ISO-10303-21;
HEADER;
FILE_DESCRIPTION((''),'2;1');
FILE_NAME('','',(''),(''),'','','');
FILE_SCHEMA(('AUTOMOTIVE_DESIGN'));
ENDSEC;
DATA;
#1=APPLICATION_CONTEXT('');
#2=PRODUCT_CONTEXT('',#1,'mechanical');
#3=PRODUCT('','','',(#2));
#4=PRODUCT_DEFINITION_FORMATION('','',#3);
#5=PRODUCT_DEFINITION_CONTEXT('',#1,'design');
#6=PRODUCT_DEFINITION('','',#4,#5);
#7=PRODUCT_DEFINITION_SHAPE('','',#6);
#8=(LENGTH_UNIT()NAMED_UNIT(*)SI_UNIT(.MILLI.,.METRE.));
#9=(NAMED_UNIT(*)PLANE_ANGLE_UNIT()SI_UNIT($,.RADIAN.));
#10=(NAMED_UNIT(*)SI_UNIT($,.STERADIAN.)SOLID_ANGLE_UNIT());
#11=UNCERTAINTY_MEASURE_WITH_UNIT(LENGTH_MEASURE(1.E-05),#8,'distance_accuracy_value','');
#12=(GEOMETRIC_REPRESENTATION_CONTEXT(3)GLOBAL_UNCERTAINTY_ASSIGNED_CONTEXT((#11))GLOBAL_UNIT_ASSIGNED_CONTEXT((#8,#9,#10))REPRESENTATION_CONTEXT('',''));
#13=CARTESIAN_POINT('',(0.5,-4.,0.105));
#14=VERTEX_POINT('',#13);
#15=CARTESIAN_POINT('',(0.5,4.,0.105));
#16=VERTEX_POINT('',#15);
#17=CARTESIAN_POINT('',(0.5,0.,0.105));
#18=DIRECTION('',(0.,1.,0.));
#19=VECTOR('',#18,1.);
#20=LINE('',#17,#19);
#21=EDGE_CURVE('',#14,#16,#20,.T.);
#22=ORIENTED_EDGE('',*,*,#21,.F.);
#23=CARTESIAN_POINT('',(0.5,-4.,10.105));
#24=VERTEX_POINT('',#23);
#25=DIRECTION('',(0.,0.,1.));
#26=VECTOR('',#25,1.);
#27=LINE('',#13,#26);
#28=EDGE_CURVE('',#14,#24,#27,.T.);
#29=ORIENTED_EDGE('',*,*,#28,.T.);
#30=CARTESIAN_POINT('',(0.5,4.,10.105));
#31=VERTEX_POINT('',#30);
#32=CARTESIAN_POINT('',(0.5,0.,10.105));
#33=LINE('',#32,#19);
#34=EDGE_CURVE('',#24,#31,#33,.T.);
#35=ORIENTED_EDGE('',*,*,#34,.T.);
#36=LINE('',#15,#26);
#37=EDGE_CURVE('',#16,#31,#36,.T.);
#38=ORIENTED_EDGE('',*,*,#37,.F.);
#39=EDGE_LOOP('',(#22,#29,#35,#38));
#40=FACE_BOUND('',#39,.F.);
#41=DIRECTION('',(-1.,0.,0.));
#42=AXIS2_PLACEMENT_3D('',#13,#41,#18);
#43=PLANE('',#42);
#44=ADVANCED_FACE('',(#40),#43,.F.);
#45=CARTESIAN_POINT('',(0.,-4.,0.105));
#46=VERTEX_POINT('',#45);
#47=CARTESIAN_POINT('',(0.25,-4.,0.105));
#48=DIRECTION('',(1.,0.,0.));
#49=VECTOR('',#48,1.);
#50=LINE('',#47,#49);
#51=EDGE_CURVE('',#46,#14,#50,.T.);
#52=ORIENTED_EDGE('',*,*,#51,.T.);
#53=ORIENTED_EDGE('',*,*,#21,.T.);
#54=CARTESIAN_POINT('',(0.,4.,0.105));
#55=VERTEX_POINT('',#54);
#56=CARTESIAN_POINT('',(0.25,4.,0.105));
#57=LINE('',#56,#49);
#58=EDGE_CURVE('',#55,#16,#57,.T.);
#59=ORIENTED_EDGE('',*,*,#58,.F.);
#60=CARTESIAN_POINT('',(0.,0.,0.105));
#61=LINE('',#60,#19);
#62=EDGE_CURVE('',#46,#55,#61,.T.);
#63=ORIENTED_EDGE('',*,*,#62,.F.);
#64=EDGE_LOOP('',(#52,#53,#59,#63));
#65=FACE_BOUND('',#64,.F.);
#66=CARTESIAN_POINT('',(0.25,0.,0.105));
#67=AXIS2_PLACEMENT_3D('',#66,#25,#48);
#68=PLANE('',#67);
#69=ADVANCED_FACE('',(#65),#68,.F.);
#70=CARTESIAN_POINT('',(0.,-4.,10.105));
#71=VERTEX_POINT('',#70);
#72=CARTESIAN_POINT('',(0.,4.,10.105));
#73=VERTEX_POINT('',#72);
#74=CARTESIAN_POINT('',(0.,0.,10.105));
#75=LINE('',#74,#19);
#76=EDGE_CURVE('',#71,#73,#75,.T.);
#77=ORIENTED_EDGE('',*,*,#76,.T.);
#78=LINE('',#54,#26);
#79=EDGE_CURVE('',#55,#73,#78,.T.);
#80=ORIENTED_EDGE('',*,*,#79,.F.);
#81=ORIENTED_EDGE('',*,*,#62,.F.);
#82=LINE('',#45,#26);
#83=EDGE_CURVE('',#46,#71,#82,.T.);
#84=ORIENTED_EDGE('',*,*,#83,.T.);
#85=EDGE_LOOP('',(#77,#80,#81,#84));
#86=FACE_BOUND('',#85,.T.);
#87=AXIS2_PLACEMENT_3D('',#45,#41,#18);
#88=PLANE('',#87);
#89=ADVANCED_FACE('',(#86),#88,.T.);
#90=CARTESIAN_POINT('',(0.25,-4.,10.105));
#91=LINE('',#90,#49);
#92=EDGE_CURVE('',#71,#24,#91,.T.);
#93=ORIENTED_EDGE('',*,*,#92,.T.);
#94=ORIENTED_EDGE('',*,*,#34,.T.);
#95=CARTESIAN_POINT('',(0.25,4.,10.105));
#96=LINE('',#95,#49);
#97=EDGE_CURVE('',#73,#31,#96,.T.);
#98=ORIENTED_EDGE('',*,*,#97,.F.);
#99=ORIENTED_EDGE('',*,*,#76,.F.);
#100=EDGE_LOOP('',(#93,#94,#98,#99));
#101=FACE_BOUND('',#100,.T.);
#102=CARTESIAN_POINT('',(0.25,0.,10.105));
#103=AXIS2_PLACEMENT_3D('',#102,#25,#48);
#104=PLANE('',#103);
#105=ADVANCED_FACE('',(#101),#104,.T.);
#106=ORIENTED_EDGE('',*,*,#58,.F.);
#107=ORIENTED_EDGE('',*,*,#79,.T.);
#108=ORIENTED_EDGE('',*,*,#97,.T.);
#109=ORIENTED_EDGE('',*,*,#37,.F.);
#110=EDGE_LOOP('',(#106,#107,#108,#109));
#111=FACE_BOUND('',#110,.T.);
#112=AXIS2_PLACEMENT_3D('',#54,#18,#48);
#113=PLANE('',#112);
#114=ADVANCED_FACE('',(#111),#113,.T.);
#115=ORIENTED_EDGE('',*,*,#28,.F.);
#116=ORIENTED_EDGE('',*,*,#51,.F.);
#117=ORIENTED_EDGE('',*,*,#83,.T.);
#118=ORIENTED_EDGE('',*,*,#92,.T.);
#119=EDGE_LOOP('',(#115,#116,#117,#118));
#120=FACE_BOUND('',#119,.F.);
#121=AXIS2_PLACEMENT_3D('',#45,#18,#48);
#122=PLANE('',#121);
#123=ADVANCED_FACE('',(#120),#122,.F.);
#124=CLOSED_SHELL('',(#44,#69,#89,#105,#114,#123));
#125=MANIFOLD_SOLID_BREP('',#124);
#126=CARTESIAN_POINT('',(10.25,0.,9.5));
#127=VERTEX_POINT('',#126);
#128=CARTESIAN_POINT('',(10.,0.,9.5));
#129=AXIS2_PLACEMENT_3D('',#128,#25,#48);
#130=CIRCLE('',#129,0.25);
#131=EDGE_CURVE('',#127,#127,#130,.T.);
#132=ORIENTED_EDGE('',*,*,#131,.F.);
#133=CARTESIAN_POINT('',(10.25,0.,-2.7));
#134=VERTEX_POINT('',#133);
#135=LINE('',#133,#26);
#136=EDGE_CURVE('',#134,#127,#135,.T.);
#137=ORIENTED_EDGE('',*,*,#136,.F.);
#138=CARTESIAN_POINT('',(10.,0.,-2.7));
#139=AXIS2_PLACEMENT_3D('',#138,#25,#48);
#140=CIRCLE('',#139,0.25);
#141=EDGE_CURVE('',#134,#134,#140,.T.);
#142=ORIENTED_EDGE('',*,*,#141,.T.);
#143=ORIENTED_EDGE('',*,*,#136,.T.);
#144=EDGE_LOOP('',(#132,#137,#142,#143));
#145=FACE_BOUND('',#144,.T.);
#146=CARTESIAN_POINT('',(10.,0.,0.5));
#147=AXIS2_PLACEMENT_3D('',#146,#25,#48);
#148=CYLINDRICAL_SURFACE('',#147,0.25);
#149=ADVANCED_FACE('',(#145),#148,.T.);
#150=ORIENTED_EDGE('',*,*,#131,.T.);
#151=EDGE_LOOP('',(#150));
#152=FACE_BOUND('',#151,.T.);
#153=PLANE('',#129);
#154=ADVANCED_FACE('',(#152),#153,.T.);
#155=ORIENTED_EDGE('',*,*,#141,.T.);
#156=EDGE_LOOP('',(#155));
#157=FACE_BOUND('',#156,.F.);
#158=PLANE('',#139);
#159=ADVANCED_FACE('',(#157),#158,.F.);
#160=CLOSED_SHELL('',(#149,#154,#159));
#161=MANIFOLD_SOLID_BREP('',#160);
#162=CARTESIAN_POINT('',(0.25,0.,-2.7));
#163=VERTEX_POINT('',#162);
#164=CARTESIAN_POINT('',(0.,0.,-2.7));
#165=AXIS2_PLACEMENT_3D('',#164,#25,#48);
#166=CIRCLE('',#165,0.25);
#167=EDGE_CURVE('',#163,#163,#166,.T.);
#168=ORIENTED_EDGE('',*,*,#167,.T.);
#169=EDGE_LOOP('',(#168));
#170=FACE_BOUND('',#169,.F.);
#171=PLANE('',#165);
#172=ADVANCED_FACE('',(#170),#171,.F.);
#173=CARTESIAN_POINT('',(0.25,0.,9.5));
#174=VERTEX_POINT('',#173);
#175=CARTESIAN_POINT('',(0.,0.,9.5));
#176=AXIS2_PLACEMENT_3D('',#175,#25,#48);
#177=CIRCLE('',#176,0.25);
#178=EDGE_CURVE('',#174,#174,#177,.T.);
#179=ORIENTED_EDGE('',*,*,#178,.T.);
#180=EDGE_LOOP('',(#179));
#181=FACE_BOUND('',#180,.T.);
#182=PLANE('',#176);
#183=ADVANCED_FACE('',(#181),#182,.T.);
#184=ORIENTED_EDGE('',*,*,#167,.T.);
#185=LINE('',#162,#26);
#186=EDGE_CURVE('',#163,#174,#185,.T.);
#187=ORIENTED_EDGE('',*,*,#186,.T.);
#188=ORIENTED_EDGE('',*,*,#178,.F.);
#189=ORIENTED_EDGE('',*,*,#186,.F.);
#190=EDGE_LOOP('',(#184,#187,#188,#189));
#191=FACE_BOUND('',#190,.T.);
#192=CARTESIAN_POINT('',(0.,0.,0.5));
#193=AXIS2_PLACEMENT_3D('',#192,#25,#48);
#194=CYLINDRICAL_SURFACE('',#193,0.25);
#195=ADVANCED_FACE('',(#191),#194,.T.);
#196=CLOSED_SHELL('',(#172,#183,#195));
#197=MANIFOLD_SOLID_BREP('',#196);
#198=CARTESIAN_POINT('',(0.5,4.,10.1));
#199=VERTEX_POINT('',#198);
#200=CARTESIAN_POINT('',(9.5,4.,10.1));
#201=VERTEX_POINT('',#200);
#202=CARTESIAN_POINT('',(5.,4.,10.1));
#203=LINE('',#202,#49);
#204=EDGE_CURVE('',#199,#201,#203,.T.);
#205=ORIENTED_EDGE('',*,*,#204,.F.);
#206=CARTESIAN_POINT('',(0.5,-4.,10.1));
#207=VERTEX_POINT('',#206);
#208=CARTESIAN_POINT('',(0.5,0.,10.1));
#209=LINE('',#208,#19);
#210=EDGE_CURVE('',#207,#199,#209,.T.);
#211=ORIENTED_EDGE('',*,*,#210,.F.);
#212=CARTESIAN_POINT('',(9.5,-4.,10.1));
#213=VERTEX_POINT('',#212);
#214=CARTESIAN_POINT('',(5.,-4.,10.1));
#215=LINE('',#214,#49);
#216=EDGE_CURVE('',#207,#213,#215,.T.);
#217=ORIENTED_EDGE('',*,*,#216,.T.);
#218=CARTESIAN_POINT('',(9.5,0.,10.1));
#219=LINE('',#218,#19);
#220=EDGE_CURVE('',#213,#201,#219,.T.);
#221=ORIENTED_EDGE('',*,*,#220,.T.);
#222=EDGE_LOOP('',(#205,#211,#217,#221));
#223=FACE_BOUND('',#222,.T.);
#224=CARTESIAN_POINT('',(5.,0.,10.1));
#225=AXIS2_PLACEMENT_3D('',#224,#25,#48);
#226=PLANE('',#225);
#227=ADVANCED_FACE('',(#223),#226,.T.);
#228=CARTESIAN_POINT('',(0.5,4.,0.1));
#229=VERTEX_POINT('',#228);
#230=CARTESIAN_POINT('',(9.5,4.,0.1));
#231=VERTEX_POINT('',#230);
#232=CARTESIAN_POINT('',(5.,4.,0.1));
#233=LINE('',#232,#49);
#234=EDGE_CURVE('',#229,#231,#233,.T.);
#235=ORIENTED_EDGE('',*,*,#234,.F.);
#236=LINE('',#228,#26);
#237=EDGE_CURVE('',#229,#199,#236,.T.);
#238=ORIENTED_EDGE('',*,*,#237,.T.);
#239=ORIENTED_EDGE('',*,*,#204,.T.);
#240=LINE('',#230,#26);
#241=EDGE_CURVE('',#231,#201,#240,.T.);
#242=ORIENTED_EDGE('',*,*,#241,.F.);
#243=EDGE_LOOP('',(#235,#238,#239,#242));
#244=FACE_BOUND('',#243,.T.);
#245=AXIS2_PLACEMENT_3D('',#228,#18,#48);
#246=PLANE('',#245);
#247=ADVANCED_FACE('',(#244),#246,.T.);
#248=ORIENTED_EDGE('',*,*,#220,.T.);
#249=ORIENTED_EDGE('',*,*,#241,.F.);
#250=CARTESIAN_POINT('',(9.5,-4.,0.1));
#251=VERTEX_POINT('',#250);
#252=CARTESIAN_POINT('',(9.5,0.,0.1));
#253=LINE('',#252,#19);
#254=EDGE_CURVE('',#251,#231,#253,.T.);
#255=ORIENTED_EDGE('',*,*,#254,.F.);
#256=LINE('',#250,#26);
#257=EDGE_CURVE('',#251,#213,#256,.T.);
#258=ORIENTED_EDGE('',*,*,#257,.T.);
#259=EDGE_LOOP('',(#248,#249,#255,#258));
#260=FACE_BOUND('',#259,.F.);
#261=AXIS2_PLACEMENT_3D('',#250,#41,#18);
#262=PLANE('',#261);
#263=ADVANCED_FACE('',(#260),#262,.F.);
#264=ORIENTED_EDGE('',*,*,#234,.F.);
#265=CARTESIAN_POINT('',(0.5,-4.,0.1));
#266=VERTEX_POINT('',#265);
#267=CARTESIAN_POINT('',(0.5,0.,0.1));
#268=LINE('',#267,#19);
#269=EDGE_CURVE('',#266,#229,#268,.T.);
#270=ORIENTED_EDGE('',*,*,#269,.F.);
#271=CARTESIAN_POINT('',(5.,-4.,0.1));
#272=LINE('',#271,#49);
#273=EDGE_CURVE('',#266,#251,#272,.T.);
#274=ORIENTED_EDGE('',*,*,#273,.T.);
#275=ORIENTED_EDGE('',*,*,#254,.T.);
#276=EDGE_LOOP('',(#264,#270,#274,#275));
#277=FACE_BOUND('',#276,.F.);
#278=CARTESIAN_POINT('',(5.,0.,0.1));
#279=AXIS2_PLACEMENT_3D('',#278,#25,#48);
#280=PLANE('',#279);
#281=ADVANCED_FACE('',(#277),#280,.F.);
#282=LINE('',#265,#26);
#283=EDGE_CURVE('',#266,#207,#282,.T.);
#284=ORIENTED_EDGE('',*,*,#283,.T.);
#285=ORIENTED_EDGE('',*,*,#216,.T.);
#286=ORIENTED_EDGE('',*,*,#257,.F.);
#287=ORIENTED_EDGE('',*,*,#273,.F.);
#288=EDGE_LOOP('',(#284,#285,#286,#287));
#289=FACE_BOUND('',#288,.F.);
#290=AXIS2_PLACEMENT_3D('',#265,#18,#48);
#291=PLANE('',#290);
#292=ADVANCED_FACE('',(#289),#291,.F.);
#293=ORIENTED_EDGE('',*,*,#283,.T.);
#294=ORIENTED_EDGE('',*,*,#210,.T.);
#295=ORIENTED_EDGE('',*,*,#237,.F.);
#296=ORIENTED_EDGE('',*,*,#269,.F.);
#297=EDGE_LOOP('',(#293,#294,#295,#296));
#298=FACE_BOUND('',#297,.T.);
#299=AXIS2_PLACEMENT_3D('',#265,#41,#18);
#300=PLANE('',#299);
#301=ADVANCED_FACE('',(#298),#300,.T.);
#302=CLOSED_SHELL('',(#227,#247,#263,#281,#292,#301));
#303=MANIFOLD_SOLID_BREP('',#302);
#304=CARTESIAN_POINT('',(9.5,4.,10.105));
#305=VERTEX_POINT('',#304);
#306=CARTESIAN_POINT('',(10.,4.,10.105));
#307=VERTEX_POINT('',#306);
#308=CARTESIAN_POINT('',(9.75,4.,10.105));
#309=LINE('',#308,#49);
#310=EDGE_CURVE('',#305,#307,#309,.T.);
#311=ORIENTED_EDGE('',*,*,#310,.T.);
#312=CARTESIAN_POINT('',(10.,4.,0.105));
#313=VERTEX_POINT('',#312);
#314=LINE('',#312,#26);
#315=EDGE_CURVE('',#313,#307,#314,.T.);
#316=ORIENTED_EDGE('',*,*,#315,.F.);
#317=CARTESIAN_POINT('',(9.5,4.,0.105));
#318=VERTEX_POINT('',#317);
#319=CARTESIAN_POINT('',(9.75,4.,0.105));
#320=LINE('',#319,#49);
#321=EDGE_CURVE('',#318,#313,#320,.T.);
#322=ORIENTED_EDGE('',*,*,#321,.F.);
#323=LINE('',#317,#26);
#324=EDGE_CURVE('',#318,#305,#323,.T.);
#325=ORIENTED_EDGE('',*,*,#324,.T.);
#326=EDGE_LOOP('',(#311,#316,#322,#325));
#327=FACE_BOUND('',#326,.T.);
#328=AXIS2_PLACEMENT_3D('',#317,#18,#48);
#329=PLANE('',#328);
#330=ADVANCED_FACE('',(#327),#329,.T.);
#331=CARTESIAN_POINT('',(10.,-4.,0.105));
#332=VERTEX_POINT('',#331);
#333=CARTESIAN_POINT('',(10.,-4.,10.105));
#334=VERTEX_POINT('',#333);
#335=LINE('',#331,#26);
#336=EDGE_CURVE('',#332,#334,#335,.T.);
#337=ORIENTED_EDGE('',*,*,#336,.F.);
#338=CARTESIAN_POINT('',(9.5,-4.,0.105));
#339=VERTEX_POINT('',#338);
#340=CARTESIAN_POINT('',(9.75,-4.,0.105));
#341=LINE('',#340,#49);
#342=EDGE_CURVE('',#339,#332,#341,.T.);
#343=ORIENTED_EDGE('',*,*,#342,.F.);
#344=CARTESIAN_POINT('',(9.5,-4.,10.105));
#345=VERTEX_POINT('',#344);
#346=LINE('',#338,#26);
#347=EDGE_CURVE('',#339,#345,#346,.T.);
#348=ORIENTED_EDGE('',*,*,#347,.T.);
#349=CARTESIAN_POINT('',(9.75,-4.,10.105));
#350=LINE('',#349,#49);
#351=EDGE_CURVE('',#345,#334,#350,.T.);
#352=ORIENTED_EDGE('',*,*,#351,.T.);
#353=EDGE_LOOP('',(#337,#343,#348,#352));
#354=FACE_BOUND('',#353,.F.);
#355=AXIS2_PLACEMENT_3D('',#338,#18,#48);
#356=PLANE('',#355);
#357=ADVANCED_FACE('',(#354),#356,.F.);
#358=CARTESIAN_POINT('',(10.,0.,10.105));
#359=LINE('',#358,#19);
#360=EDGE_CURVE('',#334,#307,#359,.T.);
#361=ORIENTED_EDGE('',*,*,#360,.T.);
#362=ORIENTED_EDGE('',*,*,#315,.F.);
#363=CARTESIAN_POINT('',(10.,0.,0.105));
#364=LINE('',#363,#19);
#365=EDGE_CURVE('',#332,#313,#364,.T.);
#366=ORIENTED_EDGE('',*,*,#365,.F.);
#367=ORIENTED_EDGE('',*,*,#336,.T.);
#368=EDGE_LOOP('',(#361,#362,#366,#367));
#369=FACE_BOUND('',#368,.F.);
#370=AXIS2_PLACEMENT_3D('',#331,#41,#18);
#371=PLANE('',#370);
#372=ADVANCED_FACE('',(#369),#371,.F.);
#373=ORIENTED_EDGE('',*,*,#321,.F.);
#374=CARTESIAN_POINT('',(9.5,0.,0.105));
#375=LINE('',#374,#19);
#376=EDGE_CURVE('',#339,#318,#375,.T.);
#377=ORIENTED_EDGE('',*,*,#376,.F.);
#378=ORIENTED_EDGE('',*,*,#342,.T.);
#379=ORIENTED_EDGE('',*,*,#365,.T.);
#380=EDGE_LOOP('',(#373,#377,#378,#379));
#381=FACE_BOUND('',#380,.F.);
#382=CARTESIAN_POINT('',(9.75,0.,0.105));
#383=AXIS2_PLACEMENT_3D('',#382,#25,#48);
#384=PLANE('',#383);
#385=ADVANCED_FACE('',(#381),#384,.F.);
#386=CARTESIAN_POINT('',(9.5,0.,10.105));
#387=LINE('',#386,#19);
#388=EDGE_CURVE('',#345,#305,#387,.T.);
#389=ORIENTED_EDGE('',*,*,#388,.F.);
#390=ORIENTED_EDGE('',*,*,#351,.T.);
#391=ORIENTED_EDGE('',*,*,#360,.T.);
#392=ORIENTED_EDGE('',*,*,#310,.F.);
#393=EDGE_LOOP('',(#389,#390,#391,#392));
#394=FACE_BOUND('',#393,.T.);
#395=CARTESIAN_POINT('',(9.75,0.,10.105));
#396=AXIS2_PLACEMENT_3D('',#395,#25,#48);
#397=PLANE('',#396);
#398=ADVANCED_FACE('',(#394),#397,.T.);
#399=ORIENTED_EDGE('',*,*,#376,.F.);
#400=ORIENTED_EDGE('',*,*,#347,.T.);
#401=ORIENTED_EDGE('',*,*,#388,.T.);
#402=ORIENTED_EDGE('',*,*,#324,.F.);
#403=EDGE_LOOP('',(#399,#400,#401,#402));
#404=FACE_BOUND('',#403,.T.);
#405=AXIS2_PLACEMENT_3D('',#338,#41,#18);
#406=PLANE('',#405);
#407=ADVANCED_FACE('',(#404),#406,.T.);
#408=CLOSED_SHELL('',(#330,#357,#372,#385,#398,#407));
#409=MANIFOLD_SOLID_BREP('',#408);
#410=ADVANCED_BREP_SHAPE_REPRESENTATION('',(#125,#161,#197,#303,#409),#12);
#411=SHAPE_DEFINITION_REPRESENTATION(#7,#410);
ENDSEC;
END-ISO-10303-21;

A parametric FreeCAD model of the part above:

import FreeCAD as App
import Part
import Sketcher

V = App.Vector
Q = App.Units.Quantity

doc = App.newDocument("Part")
params = doc.addObject("Spreadsheet::Sheet", "Params")
for row, (alias, value) in enumerate([
    ("sketch1_width", "9 mm"),
    ("sketch1_height", "8 mm"),
    ("pad1_length", "10 mm"),
    ("sketch2_diameter", "0.5 mm"),
    ("pad2_length", "9 mm"),
    ("pad2_length2", "3.2 mm"),
    ("sketch3_height", "8 mm"),
    ("sketch3_width", "0.5 mm"),
    ("pad3_length", "10 mm"),
], start=1):
    params.set(f"A{row}", alias)
    params.set(f"B{row}", "=" + value)
    params.setAlias(f"B{row}", alias)

body = doc.addObject("PartDesign::Body", "Body")

# Sketch on XY plane
sketch1 = body.newObject("Sketcher::SketchObject", "Sketch")
sketch1.AttachmentSupport = (doc.getObject("XY_Plane"), [""])
sketch1.MapMode = "FlatFace"
sketch1.AttachmentOffset = App.Placement(V(0, 0, 0.1), App.Rotation())
sketch1.addGeometry(Part.LineSegment(V(0, 4, 0), V(0, -4, 0)), False)
sketch1.addGeometry(Part.LineSegment(V(0, -4, 0), V(10, -4, 0)), False)
sketch1.addGeometry(Part.LineSegment(V(10, -4, 0), V(10, 4, 0)), False)
sketch1.addGeometry(Part.LineSegment(V(10, 4, 0), V(0, 4, 0)), False)
sketch1.addConstraint(Sketcher.Constraint("Coincident", 0, 2, 1, 1))
sketch1.addConstraint(Sketcher.Constraint("Coincident", 1, 2, 2, 1))
sketch1.addConstraint(Sketcher.Constraint("Coincident", 2, 2, 3, 1))
sketch1.addConstraint(Sketcher.Constraint("Coincident", 3, 2, 0, 1))
sketch1.addConstraint(Sketcher.Constraint("Vertical", 0))
sketch1.addConstraint(Sketcher.Constraint("Horizontal", 1))
sketch1.addConstraint(Sketcher.Constraint("Vertical", 2))
sketch1.addConstraint(Sketcher.Constraint("Horizontal", 3))
sketch1.addConstraint(Sketcher.Constraint("DistanceX", 1, 1, 1, 2, Q("9 mm")))
sketch1.addConstraint(Sketcher.Constraint("DistanceY", 0, 2, 0, 1, Q("8 mm")))
sketch1.addConstraint(Sketcher.Constraint("DistanceY", 0, 2, -1, 1, Q("4 mm")))
sketch1.addConstraint(Sketcher.Constraint("DistanceX", -1, 1, 0, 2, Q("0.5 mm")))
sketch1.setExpression("Constraints[8]", "Params.sketch1_width")
sketch1.setExpression("Constraints[9]", "Params.sketch1_height")
pad1 = body.newObject("PartDesign::Pad", "Pad")
pad1.Profile = sketch1
pad1.setExpression("Length", "Params.pad1_length")
body2 = doc.addObject("PartDesign::Body", "Body001")
body2.AllowCompound = True

# Sketch on XY plane
sketch2 = body2.newObject("Sketcher::SketchObject", "Sketch001")
sketch2.AttachmentSupport = (doc.getObject("XY_Plane001"), [""])
sketch2.MapMode = "FlatFace"
sketch2.AttachmentOffset = App.Placement(V(0, 0, 0.5), App.Rotation())
sketch2.addGeometry(Part.Circle(V(0, 0, 0), V(0, 0, 1), 0.25), False)
sketch2.addGeometry(Part.Circle(V(10, 0, 0), V(0, 0, 1), 0.25), False)
sketch2.addConstraint(Sketcher.Constraint("Coincident", 0, 3, -1, 1))
sketch2.addConstraint(Sketcher.Constraint("Equal", 0, 1))
sketch2.addConstraint(Sketcher.Constraint("PointOnObject", 1, 3, -1))
sketch2.addConstraint(Sketcher.Constraint("Diameter", 0, Q("0.5 mm")))
sketch2.addConstraint(Sketcher.Constraint("DistanceX", -1, 1, 1, 3, Q("10 mm")))
sketch2.setExpression("Constraints[3]", "Params.sketch2_diameter")
pad2 = body2.newObject("PartDesign::Pad", "Pad001")
pad2.Profile = sketch2
pad2.Type = "TwoLengths"
pad2.setExpression("Length", "Params.pad2_length")
pad2.setExpression("Length2", "Params.pad2_length2")
body3 = doc.addObject("PartDesign::Body", "Body002")
body3.AllowCompound = True

# Sketch on XY plane
sketch3 = body3.newObject("Sketcher::SketchObject", "Sketch002")
sketch3.AttachmentSupport = (doc.getObject("XY_Plane002"), [""])
sketch3.MapMode = "FlatFace"
sketch3.AttachmentOffset = App.Placement(V(0, 0, 0.105), App.Rotation())
sketch3.addGeometry(Part.LineSegment(V(0, 4, 0), V(0, -4, 0)), False)
sketch3.addGeometry(Part.LineSegment(V(0, -4, 0), V(0.5, -4, 0)), False)
sketch3.addGeometry(Part.LineSegment(V(0.5, -4, 0), V(0.5, 4, 0)), False)
sketch3.addGeometry(Part.LineSegment(V(0.5, 4, 0), V(0, 4, 0)), False)
sketch3.addGeometry(Part.LineSegment(V(9.5, 4, 0), V(9.5, -4, 0)), False)
sketch3.addGeometry(Part.LineSegment(V(9.5, -4, 0), V(10, -4, 0)), False)
sketch3.addGeometry(Part.LineSegment(V(10, -4, 0), V(10, 4, 0)), False)
sketch3.addGeometry(Part.LineSegment(V(10, 4, 0), V(9.5, 4, 0)), False)
sketch3.addConstraint(Sketcher.Constraint("Coincident", 0, 2, 1, 1))
sketch3.addConstraint(Sketcher.Constraint("Coincident", 1, 2, 2, 1))
sketch3.addConstraint(Sketcher.Constraint("Coincident", 2, 2, 3, 1))
sketch3.addConstraint(Sketcher.Constraint("Coincident", 3, 2, 0, 1))
sketch3.addConstraint(Sketcher.Constraint("Coincident", 4, 2, 5, 1))
sketch3.addConstraint(Sketcher.Constraint("Coincident", 5, 2, 6, 1))
sketch3.addConstraint(Sketcher.Constraint("Coincident", 6, 2, 7, 1))
sketch3.addConstraint(Sketcher.Constraint("Coincident", 7, 2, 4, 1))
sketch3.addConstraint(Sketcher.Constraint("Vertical", 0))
sketch3.addConstraint(Sketcher.Constraint("Horizontal", 1))
sketch3.addConstraint(Sketcher.Constraint("Vertical", 2))
sketch3.addConstraint(Sketcher.Constraint("Horizontal", 3))
sketch3.addConstraint(Sketcher.Constraint("Vertical", 4))
sketch3.addConstraint(Sketcher.Constraint("Horizontal", 5))
sketch3.addConstraint(Sketcher.Constraint("Vertical", 6))
sketch3.addConstraint(Sketcher.Constraint("Horizontal", 7))
sketch3.addConstraint(Sketcher.Constraint("Symmetric", 0, 2, 3, 2, -1, 1))
sketch3.addConstraint(Sketcher.Constraint("Horizontal", 1, 2, 4, 2))
sketch3.addConstraint(Sketcher.Constraint("Horizontal", 3, 2, 6, 2))
sketch3.addConstraint(Sketcher.Constraint("Equal", 3, 5))
sketch3.addConstraint(Sketcher.Constraint("DistanceY", 0, 2, 0, 1, Q("8 mm")))
sketch3.addConstraint(Sketcher.Constraint("DistanceX", 1, 1, 1, 2, Q("0.5 mm")))
sketch3.addConstraint(Sketcher.Constraint("DistanceX", -1, 1, 5, 2, Q("10 mm")))
sketch3.setExpression("Constraints[20]", "Params.sketch3_height")
sketch3.setExpression("Constraints[21]", "Params.sketch3_width")
pad3 = body3.newObject("PartDesign::Pad", "Pad002")
pad3.Profile = sketch3
pad3.setExpression("Length", "Params.pad3_length")

doc.recompute()
